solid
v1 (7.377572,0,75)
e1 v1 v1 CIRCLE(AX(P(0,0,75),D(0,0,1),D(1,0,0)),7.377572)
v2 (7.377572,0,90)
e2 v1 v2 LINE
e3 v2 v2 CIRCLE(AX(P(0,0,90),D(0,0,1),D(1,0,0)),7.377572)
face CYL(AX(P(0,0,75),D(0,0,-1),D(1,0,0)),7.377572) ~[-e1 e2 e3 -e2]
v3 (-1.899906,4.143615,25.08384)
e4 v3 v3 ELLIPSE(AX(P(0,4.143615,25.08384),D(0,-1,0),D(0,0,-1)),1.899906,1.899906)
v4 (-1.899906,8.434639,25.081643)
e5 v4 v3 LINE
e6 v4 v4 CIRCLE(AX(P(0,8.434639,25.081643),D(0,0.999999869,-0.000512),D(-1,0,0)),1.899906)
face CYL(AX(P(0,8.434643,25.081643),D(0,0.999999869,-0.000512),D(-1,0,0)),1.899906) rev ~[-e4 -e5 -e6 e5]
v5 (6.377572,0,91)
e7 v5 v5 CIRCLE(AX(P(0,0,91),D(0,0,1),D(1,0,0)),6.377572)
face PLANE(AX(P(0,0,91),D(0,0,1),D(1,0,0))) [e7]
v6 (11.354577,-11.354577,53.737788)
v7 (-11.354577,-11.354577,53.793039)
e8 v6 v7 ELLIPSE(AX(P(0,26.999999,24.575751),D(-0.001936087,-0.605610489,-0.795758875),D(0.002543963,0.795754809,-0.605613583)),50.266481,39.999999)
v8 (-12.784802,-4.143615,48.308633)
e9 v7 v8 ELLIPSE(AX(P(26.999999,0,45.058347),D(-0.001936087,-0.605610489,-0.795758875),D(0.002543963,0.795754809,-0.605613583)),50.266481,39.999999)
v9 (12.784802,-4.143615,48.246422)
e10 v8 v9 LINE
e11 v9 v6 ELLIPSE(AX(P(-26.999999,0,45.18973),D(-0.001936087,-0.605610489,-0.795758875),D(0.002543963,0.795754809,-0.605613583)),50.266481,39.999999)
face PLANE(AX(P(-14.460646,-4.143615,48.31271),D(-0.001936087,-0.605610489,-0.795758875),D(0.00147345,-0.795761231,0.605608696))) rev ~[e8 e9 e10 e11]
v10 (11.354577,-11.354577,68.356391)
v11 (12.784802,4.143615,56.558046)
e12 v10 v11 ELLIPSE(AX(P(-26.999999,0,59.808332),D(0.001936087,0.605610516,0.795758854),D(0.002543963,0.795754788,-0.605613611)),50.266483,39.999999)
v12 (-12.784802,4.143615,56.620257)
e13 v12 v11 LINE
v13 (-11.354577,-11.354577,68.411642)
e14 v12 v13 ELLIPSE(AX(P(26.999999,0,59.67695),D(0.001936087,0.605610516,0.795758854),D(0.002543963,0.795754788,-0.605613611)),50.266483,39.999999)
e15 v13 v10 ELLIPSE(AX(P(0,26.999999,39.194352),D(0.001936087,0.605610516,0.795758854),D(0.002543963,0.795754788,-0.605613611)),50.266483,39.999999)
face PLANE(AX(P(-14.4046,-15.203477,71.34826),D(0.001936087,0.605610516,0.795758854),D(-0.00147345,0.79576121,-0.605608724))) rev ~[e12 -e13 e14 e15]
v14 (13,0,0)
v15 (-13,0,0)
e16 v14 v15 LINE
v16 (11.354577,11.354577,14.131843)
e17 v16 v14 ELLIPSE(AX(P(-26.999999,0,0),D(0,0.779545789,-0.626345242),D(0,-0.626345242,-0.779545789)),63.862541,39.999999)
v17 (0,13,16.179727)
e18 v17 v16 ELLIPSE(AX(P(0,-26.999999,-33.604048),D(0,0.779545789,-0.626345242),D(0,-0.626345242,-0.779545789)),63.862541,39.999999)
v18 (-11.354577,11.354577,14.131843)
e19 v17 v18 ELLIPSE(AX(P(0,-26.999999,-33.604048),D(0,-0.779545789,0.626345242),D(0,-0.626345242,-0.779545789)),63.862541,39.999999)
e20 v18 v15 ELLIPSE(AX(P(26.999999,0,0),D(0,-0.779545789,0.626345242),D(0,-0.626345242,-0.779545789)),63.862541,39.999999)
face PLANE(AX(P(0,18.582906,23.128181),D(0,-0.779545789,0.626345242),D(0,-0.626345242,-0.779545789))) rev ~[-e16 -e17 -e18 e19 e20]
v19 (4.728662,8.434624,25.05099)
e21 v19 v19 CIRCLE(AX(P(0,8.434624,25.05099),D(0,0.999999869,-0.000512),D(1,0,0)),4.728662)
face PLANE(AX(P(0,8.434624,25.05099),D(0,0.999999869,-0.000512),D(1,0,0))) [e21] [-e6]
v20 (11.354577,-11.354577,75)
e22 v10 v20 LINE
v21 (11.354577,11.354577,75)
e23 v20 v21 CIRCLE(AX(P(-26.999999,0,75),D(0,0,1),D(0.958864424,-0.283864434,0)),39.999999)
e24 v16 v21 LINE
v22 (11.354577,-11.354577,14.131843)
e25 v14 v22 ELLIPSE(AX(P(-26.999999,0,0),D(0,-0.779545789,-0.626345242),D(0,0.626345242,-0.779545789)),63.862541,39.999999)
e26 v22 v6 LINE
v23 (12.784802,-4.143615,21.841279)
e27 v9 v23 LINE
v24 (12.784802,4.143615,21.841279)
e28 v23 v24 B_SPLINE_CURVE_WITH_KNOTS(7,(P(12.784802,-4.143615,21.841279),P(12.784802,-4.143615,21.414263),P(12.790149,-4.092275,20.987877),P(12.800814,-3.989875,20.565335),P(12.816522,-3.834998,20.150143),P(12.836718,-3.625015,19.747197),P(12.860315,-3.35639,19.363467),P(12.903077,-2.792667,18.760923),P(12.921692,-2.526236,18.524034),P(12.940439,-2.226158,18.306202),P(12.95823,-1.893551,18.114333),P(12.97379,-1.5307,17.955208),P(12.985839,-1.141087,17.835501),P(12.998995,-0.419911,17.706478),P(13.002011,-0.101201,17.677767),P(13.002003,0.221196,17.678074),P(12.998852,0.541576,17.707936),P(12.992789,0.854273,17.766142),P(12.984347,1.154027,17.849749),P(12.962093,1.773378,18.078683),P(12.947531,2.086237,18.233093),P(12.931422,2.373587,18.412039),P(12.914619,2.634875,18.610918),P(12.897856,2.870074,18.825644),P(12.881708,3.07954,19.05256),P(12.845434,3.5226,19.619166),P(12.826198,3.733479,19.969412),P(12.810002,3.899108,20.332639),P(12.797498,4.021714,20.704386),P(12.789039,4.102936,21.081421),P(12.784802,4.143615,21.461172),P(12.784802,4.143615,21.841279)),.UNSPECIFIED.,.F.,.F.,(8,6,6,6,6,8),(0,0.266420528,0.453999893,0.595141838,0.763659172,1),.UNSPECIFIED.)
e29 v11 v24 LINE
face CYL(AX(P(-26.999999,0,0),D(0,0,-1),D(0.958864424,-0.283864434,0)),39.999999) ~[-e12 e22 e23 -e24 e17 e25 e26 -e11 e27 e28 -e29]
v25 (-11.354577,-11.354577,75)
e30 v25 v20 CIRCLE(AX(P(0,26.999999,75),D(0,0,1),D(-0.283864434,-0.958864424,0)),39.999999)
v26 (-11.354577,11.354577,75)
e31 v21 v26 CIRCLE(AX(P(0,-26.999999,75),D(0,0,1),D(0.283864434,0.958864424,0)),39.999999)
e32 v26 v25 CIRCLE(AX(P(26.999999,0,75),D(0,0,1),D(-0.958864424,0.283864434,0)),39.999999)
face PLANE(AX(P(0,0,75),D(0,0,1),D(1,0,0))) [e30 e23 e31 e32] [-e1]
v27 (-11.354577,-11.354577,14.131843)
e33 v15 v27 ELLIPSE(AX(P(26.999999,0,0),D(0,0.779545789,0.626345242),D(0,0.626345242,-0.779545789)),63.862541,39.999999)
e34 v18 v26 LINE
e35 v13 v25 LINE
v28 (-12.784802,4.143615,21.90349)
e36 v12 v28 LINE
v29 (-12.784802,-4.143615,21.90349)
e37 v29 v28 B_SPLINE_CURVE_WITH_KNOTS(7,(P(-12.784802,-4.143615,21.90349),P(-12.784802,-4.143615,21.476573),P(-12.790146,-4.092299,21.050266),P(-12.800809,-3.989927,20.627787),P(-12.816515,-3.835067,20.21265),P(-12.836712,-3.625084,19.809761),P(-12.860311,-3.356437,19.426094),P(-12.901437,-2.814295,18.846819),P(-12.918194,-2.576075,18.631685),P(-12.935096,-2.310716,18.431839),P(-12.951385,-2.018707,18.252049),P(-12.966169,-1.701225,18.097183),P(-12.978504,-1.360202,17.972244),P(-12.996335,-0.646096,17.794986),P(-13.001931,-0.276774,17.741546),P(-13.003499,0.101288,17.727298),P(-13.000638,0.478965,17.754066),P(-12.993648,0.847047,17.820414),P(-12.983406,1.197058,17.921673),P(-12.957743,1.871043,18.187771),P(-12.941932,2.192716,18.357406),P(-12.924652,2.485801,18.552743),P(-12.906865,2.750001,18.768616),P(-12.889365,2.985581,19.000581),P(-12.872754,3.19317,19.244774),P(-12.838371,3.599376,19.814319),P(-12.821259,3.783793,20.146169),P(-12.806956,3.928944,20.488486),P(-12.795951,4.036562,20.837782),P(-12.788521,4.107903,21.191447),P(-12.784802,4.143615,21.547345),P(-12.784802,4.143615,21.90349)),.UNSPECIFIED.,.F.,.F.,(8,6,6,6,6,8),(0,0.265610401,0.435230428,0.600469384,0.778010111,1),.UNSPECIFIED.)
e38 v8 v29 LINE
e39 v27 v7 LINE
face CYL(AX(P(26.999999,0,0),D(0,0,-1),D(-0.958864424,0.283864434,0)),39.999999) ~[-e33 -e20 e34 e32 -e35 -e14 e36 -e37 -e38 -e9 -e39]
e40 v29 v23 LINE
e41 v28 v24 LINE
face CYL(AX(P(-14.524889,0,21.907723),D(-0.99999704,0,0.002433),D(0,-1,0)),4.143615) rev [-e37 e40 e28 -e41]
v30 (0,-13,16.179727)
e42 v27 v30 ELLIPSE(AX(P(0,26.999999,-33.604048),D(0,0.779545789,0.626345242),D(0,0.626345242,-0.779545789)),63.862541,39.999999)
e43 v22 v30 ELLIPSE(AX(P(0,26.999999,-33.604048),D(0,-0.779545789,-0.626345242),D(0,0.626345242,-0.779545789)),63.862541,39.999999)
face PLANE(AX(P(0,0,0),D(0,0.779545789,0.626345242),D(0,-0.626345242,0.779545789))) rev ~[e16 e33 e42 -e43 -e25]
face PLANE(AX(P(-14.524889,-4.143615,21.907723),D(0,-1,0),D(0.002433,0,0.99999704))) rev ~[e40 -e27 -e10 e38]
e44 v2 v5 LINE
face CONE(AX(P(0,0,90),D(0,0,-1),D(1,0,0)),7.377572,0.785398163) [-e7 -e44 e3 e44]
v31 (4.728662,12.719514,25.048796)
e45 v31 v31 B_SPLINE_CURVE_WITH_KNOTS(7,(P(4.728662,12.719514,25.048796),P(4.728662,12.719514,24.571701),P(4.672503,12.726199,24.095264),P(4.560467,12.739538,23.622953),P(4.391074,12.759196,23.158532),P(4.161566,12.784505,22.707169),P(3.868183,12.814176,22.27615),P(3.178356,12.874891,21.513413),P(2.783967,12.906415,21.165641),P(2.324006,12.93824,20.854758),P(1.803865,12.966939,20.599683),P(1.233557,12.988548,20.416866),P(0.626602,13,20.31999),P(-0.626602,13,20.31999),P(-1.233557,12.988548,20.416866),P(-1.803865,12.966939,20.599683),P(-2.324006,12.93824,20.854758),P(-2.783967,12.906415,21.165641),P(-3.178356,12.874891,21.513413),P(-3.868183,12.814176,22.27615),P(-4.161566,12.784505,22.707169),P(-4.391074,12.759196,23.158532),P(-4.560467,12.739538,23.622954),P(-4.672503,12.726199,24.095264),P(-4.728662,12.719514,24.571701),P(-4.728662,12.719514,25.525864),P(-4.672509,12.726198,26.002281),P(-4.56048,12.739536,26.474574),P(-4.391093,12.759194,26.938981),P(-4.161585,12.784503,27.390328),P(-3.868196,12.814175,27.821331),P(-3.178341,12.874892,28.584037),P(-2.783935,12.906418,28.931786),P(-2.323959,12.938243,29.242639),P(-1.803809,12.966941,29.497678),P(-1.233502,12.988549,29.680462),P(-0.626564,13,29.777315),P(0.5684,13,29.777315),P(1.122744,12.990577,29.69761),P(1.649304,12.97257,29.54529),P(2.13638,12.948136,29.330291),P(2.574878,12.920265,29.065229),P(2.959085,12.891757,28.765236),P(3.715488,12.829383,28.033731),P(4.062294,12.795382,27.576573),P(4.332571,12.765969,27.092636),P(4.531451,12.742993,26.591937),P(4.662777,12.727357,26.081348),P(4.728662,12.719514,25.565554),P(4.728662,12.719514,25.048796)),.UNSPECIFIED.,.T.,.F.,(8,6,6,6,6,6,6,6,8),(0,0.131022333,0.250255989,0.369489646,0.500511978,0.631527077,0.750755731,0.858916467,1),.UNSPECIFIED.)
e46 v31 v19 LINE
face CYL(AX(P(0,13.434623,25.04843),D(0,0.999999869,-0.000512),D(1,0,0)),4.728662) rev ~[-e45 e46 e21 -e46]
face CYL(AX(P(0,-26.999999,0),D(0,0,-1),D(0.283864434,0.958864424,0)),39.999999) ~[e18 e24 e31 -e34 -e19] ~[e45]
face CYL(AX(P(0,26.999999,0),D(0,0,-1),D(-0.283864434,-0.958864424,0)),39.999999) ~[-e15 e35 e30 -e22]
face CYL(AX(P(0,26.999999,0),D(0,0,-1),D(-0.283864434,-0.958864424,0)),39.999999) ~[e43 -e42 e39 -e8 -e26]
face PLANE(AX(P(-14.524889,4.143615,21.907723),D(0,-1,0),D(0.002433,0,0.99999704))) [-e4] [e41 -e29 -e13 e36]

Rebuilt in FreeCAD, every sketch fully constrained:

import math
import FreeCAD as App
import Part
import Sketcher

V = App.Vector
Q = App.Units.Quantity


def edges_at(feature, points):
    """Names of the edges that pass closest to the given points."""
    edges = feature.Shape.Edges
    near = lambda p: min(range(len(edges)), key=lambda i: edges[i].distToShape(Part.Vertex(*p))[0])
    return sorted({f"Edge{near(p) + 1}" for p in points})

doc = App.newDocument("Part")
body = doc.addObject("PartDesign::Body", "Body")

sketch1 = doc.addObject("Sketcher::SketchObject", "Sketch")
body.addObject(sketch1)
sketch1.AttachmentSupport = (doc.XY_Plane, [""])
sketch1.MapMode = "FlatFace"
sketch1.addGeometry([
    Part.ArcOfCircle(Part.Circle(V(27, 0, 0), V(0, 0, 1), 40), math.radians(164), math.radians(196)),
    Part.ArcOfCircle(Part.Circle(V(0, 27, 0), V(0, 0, 1), 40), math.radians(-106), math.radians(-74)),
    Part.ArcOfCircle(Part.Circle(V(-27, 0, 0), V(0, 0, 1), 40), math.radians(-16), math.radians(16)),
    Part.ArcOfCircle(Part.Circle(V(0, -27, 0), V(0, 0, 1), 40), math.radians(74), math.radians(106)),
], False)
sketch1.addConstraint([
    Sketcher.Constraint("Coincident", 0, 2, 1, 1),
    Sketcher.Constraint("Coincident", 1, 2, 2, 1),
    Sketcher.Constraint("Coincident", 2, 2, 3, 1),
    Sketcher.Constraint("Coincident", 3, 2, 0, 1),
    Sketcher.Constraint("Equal", 0, 1),
    Sketcher.Constraint("Equal", 1, 2),
    Sketcher.Constraint("Equal", 2, 3),
    Sketcher.Constraint("Symmetric", 0, 3, 2, 3, -1, 1),
    Sketcher.Constraint("Symmetric", 1, 3, 3, 3, -1, 1),
    Sketcher.Constraint("Symmetric", 0, 2, 1, 2, -2),
    Sketcher.Constraint("Radius", 0, Q("39.999999 mm")),
    Sketcher.Constraint("DistanceX", -1, 1, 0, 3, Q("26.999999 mm")),
    Sketcher.Constraint("DistanceY", -1, 1, 1, 3, Q("26.999999 mm")),
])
pad1 = doc.addObject("PartDesign::Pad", "Pad")
body.addObject(pad1)
pad1.Profile = sketch1
pad1.Length = 75

sketch2 = doc.addObject("Sketcher::SketchObject", "Sketch001")
body.addObject(sketch2)
sketch2.AttachmentSupport = (doc.XY_Plane, [""])
sketch2.MapMode = "FlatFace"
sketch2.AttachmentOffset = App.Placement(V(0, 0, 75), App.Rotation())
sketch2.addGeometry(Part.Circle(V(0, 0, 0), V(0, 0, 1), 7), False)
sketch2.addConstraint([
    Sketcher.Constraint("Coincident", 0, 3, -1, 1),
    Sketcher.Constraint("Diameter", 0, Q("14.755144 mm")),
])
pad2 = doc.addObject("PartDesign::Pad", "Pad001")
body.addObject(pad2)
pad2.Profile = sketch2
pad2.Length = 16
doc.recompute()

chamfer = doc.addObject("PartDesign::Chamfer", "Chamfer")
body.addObject(chamfer)
chamfer.Base = (pad2, edges_at(pad2, [(-7.378, 0, 91)]))
chamfer.Size = 1

sketch3 = doc.addObject("Sketcher::SketchObject", "Sketch002")
body.addObject(sketch3)
sketch3.AttachmentSupport = (doc.YZ_Plane, [""])
sketch3.MapMode = "FlatFace"
sketch3.addGeometry([
    Part.LineSegment(V(0, 0, 0), V(-19, 23, 0)),
    Part.LineSegment(V(-19, 23, 0), V(-19, -17, 0)),
    Part.LineSegment(V(-19, -17, 0), V(19, -17, 0)),
    Part.LineSegment(V(19, -17, 0), V(19, 23, 0)),
    Part.LineSegment(V(19, 23, 0), V(0, 0, 0)),
], False)
sketch3.addConstraint([
    Sketcher.Constraint("Coincident", 0, 2, 1, 1),
    Sketcher.Constraint("Coincident", 1, 2, 2, 1),
    Sketcher.Constraint("Coincident", 2, 2, 3, 1),
    Sketcher.Constraint("Coincident", 3, 2, 4, 1),
    Sketcher.Constraint("Coincident", 4, 2, 0, 1),
    Sketcher.Constraint("Vertical", 1),
    Sketcher.Constraint("Horizontal", 2),
    Sketcher.Constraint("Vertical", 3),
    Sketcher.Constraint("Coincident", 4, 2, -1, 1),
    Sketcher.Constraint("Symmetric", 0, 2, 3, 2, -2),
    Sketcher.Constraint("Distance", 0, Q("29.668791 mm")),
    Sketcher.Constraint("DistanceX", 2, 1, 2, 2, Q("37.165812 mm")),
    Sketcher.Constraint("DistanceY", 1, 2, 1, 1, Q("40.230354 mm")),
])
pocket1 = doc.addObject("PartDesign::Pocket", "Pocket")
body.addObject(pocket1)
pocket1.Profile = sketch3
pocket1.Type = "ThroughAll"
pocket1.Midplane = True

sketch4 = doc.addObject("Sketcher::SketchObject", "Sketch003")
body.addObject(sketch4)
sketch4.Placement = App.Placement(V(0, 13.444963, 45.243954), App.Rotation(V(1, 0, 0), V(0, -0.000512, -0.999999869), V(0, 0.999999869, -0.000512), "ZXY"))
sketch4.addGeometry(Part.Circle(V(0, 20.2, 0), V(0, 0, 1), 4.7), False)
sketch4.addConstraint([
    Sketcher.Constraint("PointOnObject", 0, 3, -2),
    Sketcher.Constraint("Diameter", 0, Q("9.457324 mm")),
    Sketcher.Constraint("DistanceY", -1, 1, 0, 3, Q("20.195527 mm")),
])
pocket2 = doc.addObject("PartDesign::Pocket", "Pocket001")
body.addObject(pocket2)
pocket2.Profile = sketch4
pocket2.Length = 5

sketch5 = doc.addObject("Sketcher::SketchObject", "Sketch004")
body.addObject(sketch5)
sketch5.Placement = App.Placement(V(-14.478585, 0, 40.939498), App.Rotation(V(0, 1, 0), V(0.002433, 0, 0.99999704), V(0.99999704, 0, -0.002433), "ZXY"))
sketch5.addGeometry([
    Part.ArcOfCircle(Part.Circle(V(0, -19, 0), V(0, 0, 1), 4.1), math.radians(180), math.radians(360)),
    Part.LineSegment(V(4.1, -19, 0), V(4.1, 15.7, 0)),
    Part.LineSegment(V(4.1, 15.7, 0), V(-15.2, 30.4, 0)),
    Part.LineSegment(V(-15.2, 30.4, 0), V(-20.9, 20.2, 0)),
    Part.LineSegment(V(-20.9, 20.2, 0), V(-4.1, 7.4, 0)),
    Part.LineSegment(V(-4.1, 7.4, 0), V(-4.1, -19, 0)),
], False)
sketch5.addConstraint([
    Sketcher.Constraint("Tangent", 0, 2, 1, 1),
    Sketcher.Constraint("Coincident", 1, 2, 2, 1),
    Sketcher.Constraint("Coincident", 2, 2, 3, 1),
    Sketcher.Constraint("Coincident", 3, 2, 4, 1),
    Sketcher.Constraint("Coincident", 4, 2, 5, 1),
    Sketcher.Constraint("Tangent", 5, 2, 0, 1),
    Sketcher.Constraint("Vertical", 1),
    Sketcher.Constraint("Vertical", 5),
    Sketcher.Constraint("PointOnObject", 0, 3, -2),
    Sketcher.Constraint("Parallel", 2, 4),
    Sketcher.Constraint("Radius", 0, Q("4.143615 mm")),
    Sketcher.Constraint("DistanceX", 3, 2, 1, 2, Q("25.089101 mm")),
    Sketcher.Constraint("DistanceY", 4, 2, 1, 2, Q("8.3116 mm")),
    Sketcher.Constraint("Distance", 4, Q("21.114212 mm")),
    Sketcher.Constraint("DistanceY", 1, 1, 1, 2, Q("34.716665 mm")),
    Sketcher.Constraint("DistanceY", 0, 3, -1, 1, Q("19.031831 mm")),
    Sketcher.Constraint("DistanceY", -1, 1, 2, 2, Q("30.408852 mm")),
])
pocket3 = doc.addObject("PartDesign::Pocket", "Pocket002")
body.addObject(pocket3)
pocket3.Profile = sketch5
pocket3.Type = "ThroughAll"
pocket3.Midplane = True

sketch6 = doc.addObject("Sketcher::SketchObject", "Sketch005")
body.addObject(sketch6)
sketch6.Placement = App.Placement(V(0, 8.421799, -0.004311), App.Rotation(V(-1, 0, 0), V(0, 0.000512, 0.999999869), V(0, 0.999999869, -0.000512), "ZXY"))
sketch6.addGeometry(Part.Circle(V(0, 25.1, 0), V(0, 0, 1), 1.9), False)
sketch6.addConstraint([
    Sketcher.Constraint("PointOnObject", 0, 3, -2),
    Sketcher.Constraint("Diameter", 0, Q("3.799812 mm")),
    Sketcher.Constraint("DistanceY", -1, 1, 0, 3, Q("25.085957 mm")),
])
pocket4 = doc.addObject("PartDesign::Pocket", "Pocket003")
body.addObject(pocket4)
pocket4.Profile = sketch6
pocket4.Length = 5

doc.recompute()
